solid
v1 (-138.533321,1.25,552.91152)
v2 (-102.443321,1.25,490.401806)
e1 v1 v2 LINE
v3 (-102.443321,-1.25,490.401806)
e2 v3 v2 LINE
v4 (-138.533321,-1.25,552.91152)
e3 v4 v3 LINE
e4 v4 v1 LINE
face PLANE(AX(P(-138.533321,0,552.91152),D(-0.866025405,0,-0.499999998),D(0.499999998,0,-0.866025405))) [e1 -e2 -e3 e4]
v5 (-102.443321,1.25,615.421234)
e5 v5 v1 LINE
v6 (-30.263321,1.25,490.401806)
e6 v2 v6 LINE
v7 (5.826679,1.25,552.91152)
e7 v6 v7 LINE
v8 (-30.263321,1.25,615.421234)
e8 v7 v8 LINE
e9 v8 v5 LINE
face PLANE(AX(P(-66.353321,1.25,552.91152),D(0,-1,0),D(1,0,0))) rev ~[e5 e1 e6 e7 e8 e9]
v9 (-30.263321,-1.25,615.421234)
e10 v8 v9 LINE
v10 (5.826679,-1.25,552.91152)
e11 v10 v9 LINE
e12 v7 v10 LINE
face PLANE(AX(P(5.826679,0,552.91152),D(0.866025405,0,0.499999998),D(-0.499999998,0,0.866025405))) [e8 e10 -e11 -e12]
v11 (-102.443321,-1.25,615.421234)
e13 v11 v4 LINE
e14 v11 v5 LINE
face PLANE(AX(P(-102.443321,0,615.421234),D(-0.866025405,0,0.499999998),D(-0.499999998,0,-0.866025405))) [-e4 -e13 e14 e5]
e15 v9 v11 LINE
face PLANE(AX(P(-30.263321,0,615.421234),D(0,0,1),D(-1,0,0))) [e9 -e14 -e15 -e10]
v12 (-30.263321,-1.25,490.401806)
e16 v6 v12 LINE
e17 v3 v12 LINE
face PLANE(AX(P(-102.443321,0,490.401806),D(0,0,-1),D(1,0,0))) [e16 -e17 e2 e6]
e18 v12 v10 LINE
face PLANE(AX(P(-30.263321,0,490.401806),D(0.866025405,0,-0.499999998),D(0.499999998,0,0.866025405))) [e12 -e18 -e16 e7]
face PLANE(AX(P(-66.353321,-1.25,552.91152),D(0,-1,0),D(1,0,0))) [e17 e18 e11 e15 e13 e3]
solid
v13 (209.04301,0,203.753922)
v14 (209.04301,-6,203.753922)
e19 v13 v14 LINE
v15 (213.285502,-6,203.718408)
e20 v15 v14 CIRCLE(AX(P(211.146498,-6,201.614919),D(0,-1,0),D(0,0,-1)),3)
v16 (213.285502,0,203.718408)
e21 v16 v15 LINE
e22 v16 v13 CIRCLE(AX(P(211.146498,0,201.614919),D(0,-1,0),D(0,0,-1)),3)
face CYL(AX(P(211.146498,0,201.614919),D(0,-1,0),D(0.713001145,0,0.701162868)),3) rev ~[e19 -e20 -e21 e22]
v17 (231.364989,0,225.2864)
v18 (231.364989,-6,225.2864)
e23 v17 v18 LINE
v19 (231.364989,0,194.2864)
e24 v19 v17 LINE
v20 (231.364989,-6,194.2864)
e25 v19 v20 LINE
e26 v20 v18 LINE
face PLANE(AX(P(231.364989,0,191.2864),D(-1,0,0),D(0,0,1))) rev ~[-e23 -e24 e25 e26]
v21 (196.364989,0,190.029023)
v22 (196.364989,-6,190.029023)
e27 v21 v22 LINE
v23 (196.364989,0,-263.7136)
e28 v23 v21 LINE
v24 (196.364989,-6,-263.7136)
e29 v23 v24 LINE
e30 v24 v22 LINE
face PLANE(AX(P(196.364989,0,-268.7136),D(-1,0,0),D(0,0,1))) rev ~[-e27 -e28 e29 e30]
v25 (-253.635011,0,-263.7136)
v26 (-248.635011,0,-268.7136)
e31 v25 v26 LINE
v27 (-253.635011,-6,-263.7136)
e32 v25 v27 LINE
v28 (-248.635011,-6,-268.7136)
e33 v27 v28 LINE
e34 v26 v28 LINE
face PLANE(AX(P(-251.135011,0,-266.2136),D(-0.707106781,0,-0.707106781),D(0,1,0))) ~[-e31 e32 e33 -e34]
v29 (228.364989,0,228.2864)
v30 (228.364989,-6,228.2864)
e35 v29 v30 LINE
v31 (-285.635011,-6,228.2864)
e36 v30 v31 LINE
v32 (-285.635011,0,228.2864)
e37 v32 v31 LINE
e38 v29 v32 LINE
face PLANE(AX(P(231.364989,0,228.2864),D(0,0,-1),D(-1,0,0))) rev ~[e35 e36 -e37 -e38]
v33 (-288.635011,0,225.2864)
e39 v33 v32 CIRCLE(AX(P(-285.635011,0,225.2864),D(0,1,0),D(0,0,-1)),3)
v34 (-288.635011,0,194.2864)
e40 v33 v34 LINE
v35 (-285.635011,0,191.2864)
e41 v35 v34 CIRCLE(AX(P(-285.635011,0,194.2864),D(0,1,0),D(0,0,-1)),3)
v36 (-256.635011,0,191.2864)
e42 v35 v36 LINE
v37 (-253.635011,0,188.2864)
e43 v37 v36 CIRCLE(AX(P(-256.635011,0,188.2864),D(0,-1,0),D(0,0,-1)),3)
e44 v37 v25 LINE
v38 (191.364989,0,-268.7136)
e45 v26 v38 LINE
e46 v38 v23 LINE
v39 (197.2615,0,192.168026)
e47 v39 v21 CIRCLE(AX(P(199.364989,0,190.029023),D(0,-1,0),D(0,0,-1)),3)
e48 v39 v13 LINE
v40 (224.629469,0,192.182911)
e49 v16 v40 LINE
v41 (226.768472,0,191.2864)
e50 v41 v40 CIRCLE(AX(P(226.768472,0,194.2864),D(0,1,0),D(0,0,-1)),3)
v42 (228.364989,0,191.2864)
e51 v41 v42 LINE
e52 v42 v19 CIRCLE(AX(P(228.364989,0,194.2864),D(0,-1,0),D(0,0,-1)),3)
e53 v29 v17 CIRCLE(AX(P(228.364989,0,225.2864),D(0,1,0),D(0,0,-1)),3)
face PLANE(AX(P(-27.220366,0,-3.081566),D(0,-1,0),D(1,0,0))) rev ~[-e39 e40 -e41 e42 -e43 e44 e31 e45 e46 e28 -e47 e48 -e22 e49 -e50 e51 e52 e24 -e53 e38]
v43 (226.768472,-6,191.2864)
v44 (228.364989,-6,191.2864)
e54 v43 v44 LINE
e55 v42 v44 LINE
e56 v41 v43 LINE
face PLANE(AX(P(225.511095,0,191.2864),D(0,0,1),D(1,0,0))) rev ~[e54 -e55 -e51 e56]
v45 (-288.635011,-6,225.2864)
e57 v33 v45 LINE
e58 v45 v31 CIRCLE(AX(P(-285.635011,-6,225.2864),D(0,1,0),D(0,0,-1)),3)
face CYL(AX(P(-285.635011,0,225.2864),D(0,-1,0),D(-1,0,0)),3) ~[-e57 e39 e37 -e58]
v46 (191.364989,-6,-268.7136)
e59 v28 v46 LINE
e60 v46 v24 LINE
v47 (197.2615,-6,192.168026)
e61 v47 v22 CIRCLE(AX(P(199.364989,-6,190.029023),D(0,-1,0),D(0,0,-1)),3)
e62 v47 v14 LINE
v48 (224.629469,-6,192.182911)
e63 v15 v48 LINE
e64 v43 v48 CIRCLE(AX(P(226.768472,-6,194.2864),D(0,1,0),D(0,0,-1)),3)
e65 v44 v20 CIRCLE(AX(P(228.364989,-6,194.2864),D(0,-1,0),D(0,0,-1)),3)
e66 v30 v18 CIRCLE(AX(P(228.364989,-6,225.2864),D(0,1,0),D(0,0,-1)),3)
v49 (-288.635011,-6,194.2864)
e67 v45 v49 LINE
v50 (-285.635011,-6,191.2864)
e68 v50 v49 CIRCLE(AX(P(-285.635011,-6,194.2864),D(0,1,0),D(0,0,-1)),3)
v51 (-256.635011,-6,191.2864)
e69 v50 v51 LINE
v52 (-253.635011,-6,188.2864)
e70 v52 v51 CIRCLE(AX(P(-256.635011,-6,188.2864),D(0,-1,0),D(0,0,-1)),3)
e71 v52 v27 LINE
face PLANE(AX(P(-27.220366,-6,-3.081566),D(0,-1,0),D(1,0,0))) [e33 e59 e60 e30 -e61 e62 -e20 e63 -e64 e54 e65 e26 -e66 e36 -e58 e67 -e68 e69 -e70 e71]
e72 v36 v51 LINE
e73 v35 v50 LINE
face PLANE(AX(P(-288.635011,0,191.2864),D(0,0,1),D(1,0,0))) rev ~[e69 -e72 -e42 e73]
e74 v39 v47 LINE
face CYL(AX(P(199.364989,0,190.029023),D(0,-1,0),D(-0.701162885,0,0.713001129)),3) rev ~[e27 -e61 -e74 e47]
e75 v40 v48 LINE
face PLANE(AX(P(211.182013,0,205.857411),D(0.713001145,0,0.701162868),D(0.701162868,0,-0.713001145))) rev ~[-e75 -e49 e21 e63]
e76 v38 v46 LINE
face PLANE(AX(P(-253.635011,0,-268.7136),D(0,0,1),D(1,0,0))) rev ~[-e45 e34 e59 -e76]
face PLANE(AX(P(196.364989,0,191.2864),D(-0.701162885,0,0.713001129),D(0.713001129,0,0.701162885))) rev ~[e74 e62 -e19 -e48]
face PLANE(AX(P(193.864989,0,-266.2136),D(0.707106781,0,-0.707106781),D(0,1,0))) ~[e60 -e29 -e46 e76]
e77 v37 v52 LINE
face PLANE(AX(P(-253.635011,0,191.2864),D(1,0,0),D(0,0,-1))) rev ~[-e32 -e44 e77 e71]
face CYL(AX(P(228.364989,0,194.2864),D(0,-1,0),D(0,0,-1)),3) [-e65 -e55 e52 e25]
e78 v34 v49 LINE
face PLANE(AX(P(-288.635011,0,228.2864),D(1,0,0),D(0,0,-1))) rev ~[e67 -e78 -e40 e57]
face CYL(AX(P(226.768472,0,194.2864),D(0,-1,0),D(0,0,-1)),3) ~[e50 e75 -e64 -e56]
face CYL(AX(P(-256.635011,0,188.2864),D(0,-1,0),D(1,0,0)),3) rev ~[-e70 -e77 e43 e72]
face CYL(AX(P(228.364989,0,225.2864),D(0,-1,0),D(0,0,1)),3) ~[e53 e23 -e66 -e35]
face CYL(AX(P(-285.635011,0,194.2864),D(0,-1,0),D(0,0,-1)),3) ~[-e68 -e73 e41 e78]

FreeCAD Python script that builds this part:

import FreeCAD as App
import Part
import Sketcher
from FreeCAD import Vector
Q = App.Units.Quantity


def edges_at(feature, points):
    """Names of the edges that pass closest to the given points."""
    edges = feature.Shape.Edges
    near = lambda p: min(range(len(edges)), key=lambda i: edges[i].distToShape(Part.Vertex(*p))[0])
    return sorted({f"Edge{near(p) + 1}" for p in points})


def add_polygon(sketch, points):
    """Adds a closed chain of lines whose ends are joined by coincident constraints."""
    first, n = sketch.GeometryCount, len(points)
    for a, b in zip(points, points[1:] + points[:1]):
        sketch.addGeometry(Part.LineSegment(App.Vector(*a, 0), App.Vector(*b, 0)), False)
    for i in range(n):
        sketch.addConstraint(Sketcher.Constraint("Coincident", first + i, 2, first + (i + 1) % n, 1))

doc = App.newDocument("Part")
body = doc.addObject("PartDesign::Body", "Body")

# Sketch on XZ plane
sketch1 = body.newObject("Sketcher::SketchObject", "Sketch")
sketch1.AttachmentSupport = (doc.getObject("XZ_Plane"), [""])
sketch1.MapMode = "FlatFace"
add_polygon(sketch1, [(231.364989, 228.2864), (-288.635011, 228.2864), (-288.635011, 191.2864), (-253.635011, 191.2864), (-253.635011, -268.7136), (196.364989, -268.7136), (196.364989, 191.2864), (211.182013, 205.857411), (225.511095, 191.2864), (231.364989, 191.2864)])  # lines 0-9
sketch1.addConstraint([
    Sketcher.Constraint("Horizontal", 0),
    Sketcher.Constraint("Vertical", 1),
    Sketcher.Constraint("Horizontal", 2),
    Sketcher.Constraint("Vertical", 3),
    Sketcher.Constraint("Horizontal", 4),
    Sketcher.Constraint("Vertical", 5),
    Sketcher.Constraint("Horizontal", 8),
    Sketcher.Constraint("Vertical", 9),
    Sketcher.Constraint("Perpendicular", 6, 7),
    Sketcher.Constraint("Horizontal", 2, 2, 5, 2),
    Sketcher.Constraint("Horizontal", 5, 2, 7, 2),
    Sketcher.Constraint("DistanceX", 0, 2, 0, 1, 520.0),
    Sketcher.Constraint("DistanceX", 2, 1, 2, 2, 35.0),
    Sketcher.Constraint("DistanceX", 4, 1, 4, 2, 450.0),
    Sketcher.Constraint("DistanceY", 1, 2, 1, 1, 37.0),
    Sketcher.Constraint("DistanceY", 3, 2, 3, 1, 460.0),
    Sketcher.Constraint("DistanceY", -1, 1, 0, 2, 228.2864),
    Sketcher.Constraint("DistanceX", 8, 1, 8, 2, 5.853894),
    Sketcher.Constraint("DistanceX", 0, 2, -1, 1, 288.635011),
    Sketcher.Constraint("DistanceY", -1, 1, 6, 2, 205.857411),
])
pad1 = body.newObject("PartDesign::Pad", "Pad")
pad1.Profile = sketch1
pad1.Length = 6
doc.recompute()

chamfer = body.newObject("PartDesign::Chamfer", "Chamfer")
chamfer.Base = (pad1, edges_at(pad1, [(196.365, -3, -268.714), (-253.635, -3, -268.714)]))
chamfer.Size = 5
doc.recompute()

fillet = body.newObject("PartDesign::Fillet", "Fillet")
fillet.Base = (chamfer, edges_at(chamfer, [(-288.635, -3, 191.286)]))
fillet.Radius = 3
doc.recompute()

fillet2 = body.newObject("PartDesign::Fillet", "Fillet001")
fillet2.Base = (fillet, edges_at(fillet, [(-288.635, -3, 228.286)]))
fillet2.Radius = 3
doc.recompute()

fillet3 = body.newObject("PartDesign::Fillet", "Fillet002")
fillet3.Base = (fillet2, edges_at(fillet2, [(231.365, -3, 228.286)]))
fillet3.Radius = 3
doc.recompute()

fillet4 = body.newObject("PartDesign::Fillet", "Fillet003")
fillet4.Base = (fillet3, edges_at(fillet3, [(196.365, -3, 191.286)]))
fillet4.Radius = 3
doc.recompute()

fillet5 = body.newObject("PartDesign::Fillet", "Fillet004")
fillet5.Base = (fillet4, edges_at(fillet4, [(231.365, -3, 191.286)]))
fillet5.Radius = 3
doc.recompute()

fillet6 = body.newObject("PartDesign::Fillet", "Fillet005")
fillet6.Base = (fillet5, edges_at(fillet5, [(225.511, -3, 191.286)]))
fillet6.Radius = 3
doc.recompute()

fillet7 = body.newObject("PartDesign::Fillet", "Fillet006")
fillet7.Base = (fillet6, edges_at(fillet6, [(211.182, -3, 205.857)]))
fillet7.Radius = 3
doc.recompute()

fillet8 = body.newObject("PartDesign::Fillet", "Fillet007")
fillet8.Base = (fillet7, edges_at(fillet7, [(-253.635, -3, 191.286)]))
fillet8.Radius = 3
body2 = doc.addObject("PartDesign::Body", "Body001")

# Sketch on XZ plane
sketch2 = body2.newObject("Sketcher::SketchObject", "Sketch001")
sketch2.AttachmentSupport = (doc.getObject("XZ_Plane001"), [""])
sketch2.MapMode = "FlatFace"
add_polygon(sketch2, [(-102.443321, 490.401806), (-30.263321, 490.401806), (5.826679, 552.91152), (-30.263321, 615.421234), (-102.443321, 615.421234), (-138.533321, 552.91152)])  # lines 0-5
sketch2.addConstraint([
    Sketcher.Constraint("Horizontal", 0),
    Sketcher.Constraint("Horizontal", 3),
    Sketcher.Constraint("Parallel", 1, 4),
    Sketcher.Constraint("Parallel", 2, 5),
    Sketcher.Constraint("Horizontal", 1, 2, 4, 2),
    Sketcher.Constraint("Vertical", 0, 2, 2, 2),
    Sketcher.Constraint("Vertical", 3, 2, 5, 2),
    Sketcher.Constraint("Angle", 1, Q("60 deg")),
    Sketcher.Constraint("DistanceX", 0, 1, 0, 2, 72.18),
    Sketcher.Constraint("Distance", 1, 72.18),
    Sketcher.Constraint("DistanceX", 0, 2, -1, 1, 30.263321),
    Sketcher.Constraint("DistanceY", -1, 1, 1, 2, 552.91152),
])
pad2 = body2.newObject("PartDesign::Pad", "Pad001")
pad2.Profile = sketch2
pad2.Length = 2.5
pad2.Midplane = True

doc.recompute()
